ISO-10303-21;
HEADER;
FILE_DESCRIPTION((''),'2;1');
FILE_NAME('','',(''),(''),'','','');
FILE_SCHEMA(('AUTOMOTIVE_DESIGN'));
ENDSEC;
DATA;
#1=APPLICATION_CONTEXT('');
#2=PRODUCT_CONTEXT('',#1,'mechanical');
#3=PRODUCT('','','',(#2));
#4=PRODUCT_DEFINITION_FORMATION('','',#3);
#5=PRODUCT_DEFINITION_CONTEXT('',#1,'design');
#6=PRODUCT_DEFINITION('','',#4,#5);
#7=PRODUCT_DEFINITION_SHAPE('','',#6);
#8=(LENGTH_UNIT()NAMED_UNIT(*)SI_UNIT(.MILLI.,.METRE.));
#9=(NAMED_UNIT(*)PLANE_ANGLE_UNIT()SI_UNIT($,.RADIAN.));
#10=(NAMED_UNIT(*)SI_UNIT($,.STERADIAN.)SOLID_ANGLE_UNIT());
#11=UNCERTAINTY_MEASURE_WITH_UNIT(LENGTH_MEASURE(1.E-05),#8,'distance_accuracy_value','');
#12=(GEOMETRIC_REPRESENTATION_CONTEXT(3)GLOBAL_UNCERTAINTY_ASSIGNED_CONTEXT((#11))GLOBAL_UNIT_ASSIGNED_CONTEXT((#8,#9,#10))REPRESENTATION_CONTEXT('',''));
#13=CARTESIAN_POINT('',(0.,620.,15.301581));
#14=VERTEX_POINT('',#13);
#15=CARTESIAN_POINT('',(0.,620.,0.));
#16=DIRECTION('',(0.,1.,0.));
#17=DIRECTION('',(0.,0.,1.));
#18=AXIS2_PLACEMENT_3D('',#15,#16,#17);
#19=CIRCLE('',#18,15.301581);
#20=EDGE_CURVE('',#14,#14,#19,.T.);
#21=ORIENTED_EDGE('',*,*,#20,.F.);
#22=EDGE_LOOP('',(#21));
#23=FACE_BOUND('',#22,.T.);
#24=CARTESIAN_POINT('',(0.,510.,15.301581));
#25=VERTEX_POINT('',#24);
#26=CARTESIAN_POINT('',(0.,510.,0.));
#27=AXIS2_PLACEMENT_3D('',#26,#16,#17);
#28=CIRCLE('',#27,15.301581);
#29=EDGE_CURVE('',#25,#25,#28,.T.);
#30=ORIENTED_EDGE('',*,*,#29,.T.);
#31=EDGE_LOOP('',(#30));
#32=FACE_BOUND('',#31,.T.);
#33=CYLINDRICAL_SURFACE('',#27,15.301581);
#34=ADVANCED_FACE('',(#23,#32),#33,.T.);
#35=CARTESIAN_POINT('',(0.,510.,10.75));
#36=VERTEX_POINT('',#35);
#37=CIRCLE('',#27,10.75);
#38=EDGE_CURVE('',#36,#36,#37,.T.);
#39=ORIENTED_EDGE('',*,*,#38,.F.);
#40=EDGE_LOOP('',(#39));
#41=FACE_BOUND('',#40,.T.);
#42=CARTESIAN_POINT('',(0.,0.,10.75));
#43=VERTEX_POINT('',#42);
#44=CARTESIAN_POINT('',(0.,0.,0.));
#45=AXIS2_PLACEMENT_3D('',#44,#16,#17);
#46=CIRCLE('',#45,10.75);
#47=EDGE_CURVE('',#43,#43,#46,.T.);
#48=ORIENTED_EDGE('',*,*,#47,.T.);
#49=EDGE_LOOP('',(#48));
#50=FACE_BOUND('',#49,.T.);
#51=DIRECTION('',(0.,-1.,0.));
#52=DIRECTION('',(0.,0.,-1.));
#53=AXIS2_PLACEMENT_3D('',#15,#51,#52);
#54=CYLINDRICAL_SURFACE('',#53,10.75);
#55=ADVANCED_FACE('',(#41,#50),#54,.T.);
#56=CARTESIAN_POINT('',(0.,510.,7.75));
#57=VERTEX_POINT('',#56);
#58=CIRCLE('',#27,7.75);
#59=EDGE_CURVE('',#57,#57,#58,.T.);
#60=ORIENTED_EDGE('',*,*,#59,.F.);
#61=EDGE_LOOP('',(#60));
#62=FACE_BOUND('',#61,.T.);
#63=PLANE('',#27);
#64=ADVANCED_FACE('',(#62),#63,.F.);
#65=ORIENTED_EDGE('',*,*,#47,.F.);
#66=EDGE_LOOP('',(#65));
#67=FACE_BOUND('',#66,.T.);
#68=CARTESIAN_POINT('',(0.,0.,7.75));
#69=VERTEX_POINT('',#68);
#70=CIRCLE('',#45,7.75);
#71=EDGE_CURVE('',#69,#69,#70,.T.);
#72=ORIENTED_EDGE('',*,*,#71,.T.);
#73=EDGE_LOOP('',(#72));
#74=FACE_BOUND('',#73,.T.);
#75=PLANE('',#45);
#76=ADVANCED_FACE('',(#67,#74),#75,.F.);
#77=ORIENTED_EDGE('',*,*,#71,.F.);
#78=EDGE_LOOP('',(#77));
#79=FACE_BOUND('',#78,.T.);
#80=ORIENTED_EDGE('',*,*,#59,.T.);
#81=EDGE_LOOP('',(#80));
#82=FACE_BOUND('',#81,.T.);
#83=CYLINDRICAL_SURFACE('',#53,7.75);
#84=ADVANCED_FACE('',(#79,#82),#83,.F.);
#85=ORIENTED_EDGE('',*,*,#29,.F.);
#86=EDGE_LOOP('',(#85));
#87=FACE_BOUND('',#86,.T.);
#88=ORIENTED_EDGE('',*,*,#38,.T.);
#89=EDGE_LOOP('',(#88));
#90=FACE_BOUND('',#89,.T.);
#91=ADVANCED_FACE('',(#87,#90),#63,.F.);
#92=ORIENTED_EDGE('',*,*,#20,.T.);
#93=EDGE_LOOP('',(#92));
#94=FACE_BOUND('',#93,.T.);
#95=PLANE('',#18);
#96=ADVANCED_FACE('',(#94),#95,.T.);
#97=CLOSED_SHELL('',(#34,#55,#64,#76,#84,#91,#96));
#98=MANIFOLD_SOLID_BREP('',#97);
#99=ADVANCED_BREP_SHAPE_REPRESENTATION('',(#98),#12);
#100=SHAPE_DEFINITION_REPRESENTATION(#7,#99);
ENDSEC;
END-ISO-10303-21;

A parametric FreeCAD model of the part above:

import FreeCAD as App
import Part
import Sketcher

V = App.Vector

doc = App.newDocument("Part")
params = doc.addObject("Spreadsheet::Sheet", "Params")
for row, (alias, value) in enumerate([
    ("sketch1_diameter", "21.5 mm"),
    ("sketch1_diameter2", "15.5 mm"),
    ("pad1_length", "620 mm"),
    ("pad2_length", "110 mm"),
], start=1):
    params.set(f"A{row}", alias)
    params.set(f"B{row}", "=" + value)
    params.setAlias(f"B{row}", alias)

body = doc.addObject("PartDesign::Body", "Body")

sketch1 = doc.addObject("Sketcher::SketchObject", "Sketch")
body.addObject(sketch1)
sketch1.AttachmentSupport = (doc.XZ_Plane, [""])
sketch1.MapMode = "FlatFace"
sketch1.addGeometry([
    Part.Circle(V(0, 0, 0), V(0, 0, 1), 11),
    Part.Circle(V(0, 0, 0), V(0, 0, 1), 8),
], False)
sketch1.addConstraint([
    Sketcher.Constraint("Coincident", 0, 3, -1, 1),
    Sketcher.Constraint("Coincident", 1, 3, -1, 1),
    Sketcher.Constraint("Diameter", 0, 21.5),
    Sketcher.Constraint("Diameter", 1, 15.5),
])
sketch1.setExpression("Constraints[2]", "Params.sketch1_diameter")
sketch1.setExpression("Constraints[3]", "Params.sketch1_diameter2")
pad1 = doc.addObject("PartDesign::Pad", "Pad")
body.addObject(pad1)
pad1.Profile = sketch1
pad1.setExpression("Length", "Params.pad1_length")
pad1.Reversed = True

sketch2 = doc.addObject("Sketcher::SketchObject", "Sketch001")
body.addObject(sketch2)
sketch2.AttachmentSupport = (doc.XZ_Plane, [""])
sketch2.MapMode = "FlatFace"
sketch2.AttachmentOffset = App.Placement(V(0, 0, -620), App.Rotation())
sketch2.addGeometry(Part.Circle(V(0, 0, 0), V(0, 0, 1), 15), False)
sketch2.addConstraint([
    Sketcher.Constraint("Coincident", 0, 3, -1, 1),
    Sketcher.Constraint("Diameter", 0, 30.603161),
])
pad2 = doc.addObject("PartDesign::Pad", "Pad001")
body.addObject(pad2)
pad2.Profile = sketch2
pad2.setExpression("Length", "Params.pad2_length")

doc.recompute()
